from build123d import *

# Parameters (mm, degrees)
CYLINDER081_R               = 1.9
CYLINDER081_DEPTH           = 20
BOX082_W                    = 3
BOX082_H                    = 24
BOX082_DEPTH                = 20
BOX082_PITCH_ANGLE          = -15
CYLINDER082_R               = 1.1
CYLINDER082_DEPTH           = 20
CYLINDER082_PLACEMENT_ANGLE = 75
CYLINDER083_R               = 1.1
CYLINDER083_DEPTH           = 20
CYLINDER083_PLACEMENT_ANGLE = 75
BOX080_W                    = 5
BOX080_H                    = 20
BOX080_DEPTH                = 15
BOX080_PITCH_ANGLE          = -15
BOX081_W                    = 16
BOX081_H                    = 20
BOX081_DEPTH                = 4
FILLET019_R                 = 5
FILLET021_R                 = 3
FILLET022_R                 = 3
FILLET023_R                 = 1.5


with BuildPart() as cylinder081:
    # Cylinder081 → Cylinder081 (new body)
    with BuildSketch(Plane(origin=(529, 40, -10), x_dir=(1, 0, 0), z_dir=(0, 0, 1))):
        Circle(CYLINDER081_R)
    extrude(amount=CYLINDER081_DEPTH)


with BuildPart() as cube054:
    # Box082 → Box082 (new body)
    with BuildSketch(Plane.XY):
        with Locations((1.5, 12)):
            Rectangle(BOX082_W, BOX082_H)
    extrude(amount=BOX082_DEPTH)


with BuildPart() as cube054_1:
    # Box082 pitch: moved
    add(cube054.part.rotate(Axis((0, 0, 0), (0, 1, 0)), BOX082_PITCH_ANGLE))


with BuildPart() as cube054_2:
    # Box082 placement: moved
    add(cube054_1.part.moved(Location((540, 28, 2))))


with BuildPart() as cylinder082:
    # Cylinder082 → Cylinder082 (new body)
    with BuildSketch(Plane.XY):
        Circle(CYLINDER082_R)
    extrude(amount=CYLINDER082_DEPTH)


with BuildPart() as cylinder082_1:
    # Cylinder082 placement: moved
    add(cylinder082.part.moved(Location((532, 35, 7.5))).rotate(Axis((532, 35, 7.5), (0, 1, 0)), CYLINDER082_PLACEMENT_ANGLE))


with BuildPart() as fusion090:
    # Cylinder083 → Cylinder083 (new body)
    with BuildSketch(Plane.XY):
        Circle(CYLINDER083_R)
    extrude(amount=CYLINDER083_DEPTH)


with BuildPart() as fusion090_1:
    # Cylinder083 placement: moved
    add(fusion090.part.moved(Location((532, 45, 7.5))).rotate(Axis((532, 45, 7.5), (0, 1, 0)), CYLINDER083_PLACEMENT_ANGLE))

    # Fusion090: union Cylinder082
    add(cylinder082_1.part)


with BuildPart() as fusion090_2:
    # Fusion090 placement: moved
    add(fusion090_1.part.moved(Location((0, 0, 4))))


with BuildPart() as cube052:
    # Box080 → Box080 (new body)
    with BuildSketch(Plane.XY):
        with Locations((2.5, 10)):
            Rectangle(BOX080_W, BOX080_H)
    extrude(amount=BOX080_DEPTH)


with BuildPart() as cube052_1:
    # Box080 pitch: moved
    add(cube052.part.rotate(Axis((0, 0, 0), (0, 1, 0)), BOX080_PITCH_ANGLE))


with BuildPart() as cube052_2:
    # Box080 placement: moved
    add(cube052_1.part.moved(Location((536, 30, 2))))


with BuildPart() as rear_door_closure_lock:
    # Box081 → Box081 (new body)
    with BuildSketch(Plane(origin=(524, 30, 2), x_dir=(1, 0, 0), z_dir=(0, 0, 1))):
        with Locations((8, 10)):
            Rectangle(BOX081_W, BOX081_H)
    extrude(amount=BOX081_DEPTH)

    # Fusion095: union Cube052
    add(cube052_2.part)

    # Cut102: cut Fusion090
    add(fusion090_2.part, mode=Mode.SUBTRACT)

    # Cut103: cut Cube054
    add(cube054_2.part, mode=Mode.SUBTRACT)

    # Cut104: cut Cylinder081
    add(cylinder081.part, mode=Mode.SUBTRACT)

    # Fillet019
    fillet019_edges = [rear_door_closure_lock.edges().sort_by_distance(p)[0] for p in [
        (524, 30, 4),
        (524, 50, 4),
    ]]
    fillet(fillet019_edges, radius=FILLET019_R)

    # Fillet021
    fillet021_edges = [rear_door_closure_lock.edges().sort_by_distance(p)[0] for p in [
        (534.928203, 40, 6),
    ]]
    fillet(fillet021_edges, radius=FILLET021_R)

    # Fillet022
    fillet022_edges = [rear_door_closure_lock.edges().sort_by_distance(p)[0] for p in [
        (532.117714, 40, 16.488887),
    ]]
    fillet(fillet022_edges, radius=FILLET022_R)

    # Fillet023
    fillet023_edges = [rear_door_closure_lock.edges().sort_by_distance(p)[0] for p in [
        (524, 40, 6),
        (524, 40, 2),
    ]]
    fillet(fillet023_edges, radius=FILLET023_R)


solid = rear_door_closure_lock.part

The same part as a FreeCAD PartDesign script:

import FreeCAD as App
import Part
import Sketcher
from FreeCAD import Vector
Q = App.Units.Quantity


def edges_at(feature, points):
    """Names of the edges that pass closest to the given points."""
    edges = feature.Shape.Edges
    near = lambda p: min(range(len(edges)), key=lambda i: edges[i].distToShape(Part.Vertex(*p))[0])
    return sorted({f"Edge{near(p) + 1}" for p in points})


def add_polygon(sketch, points):
    """Adds a closed chain of lines whose ends are joined by coincident constraints."""
    first, n = sketch.GeometryCount, len(points)
    for a, b in zip(points, points[1:] + points[:1]):
        sketch.addGeometry(Part.LineSegment(App.Vector(*a, 0), App.Vector(*b, 0)), False)
    for i in range(n):
        sketch.addConstraint(Sketcher.Constraint("Coincident", first + i, 2, first + (i + 1) % n, 1))

doc = App.newDocument("Part")
body = doc.addObject("PartDesign::Body", "Body")

# Sketch on XY plane
sketch1 = doc.addObject("Sketcher::SketchObject", "Sketch")
body.addObject(sketch1)
sketch1.AttachmentSupport = (doc.XY_Plane, [""])
sketch1.MapMode = "FlatFace"
sketch1.AttachmentOffset = App.Placement(Vector(0, 0, -10), App.Rotation())
sketch1.addGeometry(Part.Circle(Vector(529, 40, 0), Vector(0, 0, 1), 1.9), False)
sketch1.addConstraint([
    Sketcher.Constraint("Diameter", 0, Q("3.8 mm")),
    Sketcher.Constraint("DistanceX", -1, 1, 0, 3, Q("529 mm")),
    Sketcher.Constraint("DistanceY", -1, 1, 0, 3, Q("40 mm")),
])
pad1 = doc.addObject("PartDesign::Pad", "Pad")
body.addObject(pad1)
pad1.Profile = sketch1
pad1.Length = 20
body2 = doc.addObject("PartDesign::Body", "Body001")

# Sketch on XY plane
sketch2 = doc.addObject("Sketcher::SketchObject", "Sketch001")
body2.addObject(sketch2)
sketch2.AttachmentSupport = (doc.getObject("XY_Plane001"), [""])
sketch2.MapMode = "FlatFace"
add_polygon(sketch2, [(0, 24), (0, 0), (3, 0), (3, 24)])  # lines 0-3
sketch2.addConstraint([
    Sketcher.Constraint("Vertical", 0),
    Sketcher.Constraint("Horizontal", 1),
    Sketcher.Constraint("Vertical", 2),
    Sketcher.Constraint("Horizontal", 3),
    Sketcher.Constraint("Coincident", 0, 2, -1, 1),
    Sketcher.Constraint("DistanceX", 1, 1, 1, 2, Q("3 mm")),
    Sketcher.Constraint("DistanceY", 0, 2, 0, 1, Q("24 mm")),
])
pad2 = doc.addObject("PartDesign::Pad", "Pad001")
body2.addObject(pad2)
pad2.Profile = sketch2
pad2.Length = 20
body3 = doc.addObject("PartDesign::Body", "Body002")
doc.recompute()

body2.Placement = App.Placement(Vector(0, 0, 0), App.Rotation(Vector(0, 1, 0), 345))
boolean = doc.addObject("PartDesign::Boolean", "Boolean")
body3.addObject(boolean)
boolean.Type = "Fuse"
boolean.addObjects([body2])
body4 = doc.addObject("PartDesign::Body", "Body003")
doc.recompute()

body3.Placement = App.Placement(Vector(540, 28, 2), App.Rotation(Vector(0, 0, 1), 0))
boolean2 = doc.addObject("PartDesign::Boolean", "Boolean001")
body4.addObject(boolean2)
boolean2.Type = "Fuse"
boolean2.addObjects([body3])
body5 = doc.addObject("PartDesign::Body", "Body004")

# Sketch on XY plane
sketch3 = doc.addObject("Sketcher::SketchObject", "Sketch002")
body5.addObject(sketch3)
sketch3.AttachmentSupport = (doc.getObject("XY_Plane004"), [""])
sketch3.MapMode = "FlatFace"
sketch3.addGeometry(Part.Circle(Vector(0, 0, 0), Vector(0, 0, 1), 1.1), False)
sketch3.addConstraint([
    Sketcher.Constraint("Coincident", 0, 3, -1, 1),
    Sketcher.Constraint("Diameter", 0, Q("2.2 mm")),
])
pad3 = doc.addObject("PartDesign::Pad", "Pad002")
body5.addObject(pad3)
pad3.Profile = sketch3
pad3.Length = 20
body6 = doc.addObject("PartDesign::Body", "Body005")
doc.recompute()

body5.Placement = App.Placement(Vector(532, 35, 7.5), App.Rotation(Vector(0, 1, 0), 75))
boolean3 = doc.addObject("PartDesign::Boolean", "Boolean002")
body6.addObject(boolean3)
boolean3.Type = "Fuse"
boolean3.addObjects([body5])
body7 = doc.addObject("PartDesign::Body", "Body006")

# Sketch on XY plane
sketch4 = doc.addObject("Sketcher::SketchObject", "Sketch003")
body7.addObject(sketch4)
sketch4.AttachmentSupport = (doc.getObject("XY_Plane006"), [""])
sketch4.MapMode = "FlatFace"
sketch4.addGeometry(Part.Circle(Vector(0, 0, 0), Vector(0, 0, 1), 1.1), False)
sketch4.addConstraint([
    Sketcher.Constraint("Coincident", 0, 3, -1, 1),
    Sketcher.Constraint("Diameter", 0, Q("2.2 mm")),
])
pad4 = doc.addObject("PartDesign::Pad", "Pad003")
body7.addObject(pad4)
pad4.Profile = sketch4
pad4.Length = 20
body8 = doc.addObject("PartDesign::Body", "Body007")
body8.AllowCompound = True
doc.recompute()

body7.Placement = App.Placement(Vector(532, 45, 7.5), App.Rotation(Vector(0, 1, 0), 75))
boolean4 = doc.addObject("PartDesign::Boolean", "Boolean003")
body8.addObject(boolean4)
boolean4.Type = "Fuse"
boolean4.addObjects([body7])
doc.recompute()

boolean5 = doc.addObject("PartDesign::Boolean", "Boolean004")
body8.addObject(boolean5)
boolean5.Type = "Fuse"
boolean5.addObjects([body6])
body9 = doc.addObject("PartDesign::Body", "Body008")
body9.AllowCompound = True
doc.recompute()

body8.Placement = App.Placement(Vector(0, 0, 4), App.Rotation(Vector(0, 0, 1), 0))
boolean6 = doc.addObject("PartDesign::Boolean", "Boolean005")
body9.addObject(boolean6)
boolean6.Type = "Fuse"
boolean6.addObjects([body8])
body10 = doc.addObject("PartDesign::Body", "Body009")

# Sketch on XY plane
sketch5 = doc.addObject("Sketcher::SketchObject", "Sketch004")
body10.addObject(sketch5)
sketch5.AttachmentSupport = (doc.getObject("XY_Plane009"), [""])
sketch5.MapMode = "FlatFace"
add_polygon(sketch5, [(0, 20), (0, 0), (5, 0), (5, 20)])  # lines 0-3
sketch5.addConstraint([
    Sketcher.Constraint("Vertical", 0),
    Sketcher.Constraint("Horizontal", 1),
    Sketcher.Constraint("Vertical", 2),
    Sketcher.Constraint("Horizontal", 3),
    Sketcher.Constraint("Coincident", 0, 2, -1, 1),
    Sketcher.Constraint("DistanceX", 1, 1, 1, 2, Q("5 mm")),
    Sketcher.Constraint("DistanceY", 0, 2, 0, 1, Q("20 mm")),
])
pad5 = doc.addObject("PartDesign::Pad", "Pad004")
body10.addObject(pad5)
pad5.Profile = sketch5
pad5.Length = 15
body11 = doc.addObject("PartDesign::Body", "Body010")
doc.recompute()

body10.Placement = App.Placement(Vector(0, 0, 0), App.Rotation(Vector(0, 1, 0), 345))
boolean7 = doc.addObject("PartDesign::Boolean", "Boolean006")
body11.addObject(boolean7)
boolean7.Type = "Fuse"
boolean7.addObjects([body10])
body12 = doc.addObject("PartDesign::Body", "Body011")
doc.recompute()

body11.Placement = App.Placement(Vector(536, 30, 2), App.Rotation(Vector(0, 0, 1), 0))
boolean8 = doc.addObject("PartDesign::Boolean", "Boolean007")
body12.addObject(boolean8)
boolean8.Type = "Fuse"
boolean8.addObjects([body11])
body13 = doc.addObject("PartDesign::Body", "Body012")

# Sketch on XY plane
sketch6 = doc.addObject("Sketcher::SketchObject", "Sketch005")
body13.addObject(sketch6)
sketch6.AttachmentSupport = (doc.getObject("XY_Plane012"), [""])
sketch6.MapMode = "FlatFace"
sketch6.AttachmentOffset = App.Placement(Vector(0, 0, 2), App.Rotation())
add_polygon(sketch6, [(524, 50), (524, 30), (540, 30), (540, 50)])  # lines 0-3
sketch6.addConstraint([
    Sketcher.Constraint("Vertical", 0),
    Sketcher.Constraint("Horizontal", 1),
    Sketcher.Constraint("Vertical", 2),
    Sketcher.Constraint("Horizontal", 3),
    Sketcher.Constraint("DistanceX", 1, 1, 1, 2, Q("16 mm")),
    Sketcher.Constraint("DistanceY", 0, 2, 0, 1, Q("20 mm")),
    Sketcher.Constraint("DistanceX", -1, 1, 0, 2, Q("524 mm")),
    Sketcher.Constraint("DistanceY", -1, 1, 0, 2, Q("30 mm")),
])
pad6 = doc.addObject("PartDesign::Pad", "Pad005")
body13.addObject(pad6)
pad6.Profile = sketch6
pad6.Length = 4
doc.recompute()

boolean9 = doc.addObject("PartDesign::Boolean", "Boolean008")
body13.addObject(boolean9)
boolean9.Type = "Fuse"
boolean9.addObjects([body12])
doc.recompute()

boolean10 = doc.addObject("PartDesign::Boolean", "Boolean009")
body13.addObject(boolean10)
boolean10.Type = "Cut"
boolean10.addObjects([body9])
doc.recompute()

boolean11 = doc.addObject("PartDesign::Boolean", "Boolean010")
body13.addObject(boolean11)
boolean11.Type = "Cut"
boolean11.addObjects([body4])
doc.recompute()

boolean12 = doc.addObject("PartDesign::Boolean", "Boolean011")
body13.addObject(boolean12)
boolean12.Type = "Cut"
boolean12.addObjects([body])
doc.recompute()

fillet = doc.addObject("PartDesign::Fillet", "Fillet")
body13.addObject(fillet)
fillet.Base = (boolean12, edges_at(boolean12, [(524, 30, 4), (524, 50, 4)]))
fillet.Radius = 5
doc.recompute()

fillet2 = doc.addObject("PartDesign::Fillet", "Fillet001")
body13.addObject(fillet2)
fillet2.Base = (fillet, edges_at(fillet, [(534.928, 40, 6)]))
fillet2.Radius = 3
doc.recompute()

fillet3 = doc.addObject("PartDesign::Fillet", "Fillet002")
body13.addObject(fillet3)
fillet3.Base = (fillet2, edges_at(fillet2, [(532.118, 40, 16.489)]))
fillet3.Radius = 3
doc.recompute()

fillet4 = doc.addObject("PartDesign::Fillet", "Fillet003")
body13.addObject(fillet4)
fillet4.Base = (fillet3, edges_at(fillet3, [(524, 40, 6), (524, 40, 2)]))
fillet4.Radius = 1.5

doc.recompute()
